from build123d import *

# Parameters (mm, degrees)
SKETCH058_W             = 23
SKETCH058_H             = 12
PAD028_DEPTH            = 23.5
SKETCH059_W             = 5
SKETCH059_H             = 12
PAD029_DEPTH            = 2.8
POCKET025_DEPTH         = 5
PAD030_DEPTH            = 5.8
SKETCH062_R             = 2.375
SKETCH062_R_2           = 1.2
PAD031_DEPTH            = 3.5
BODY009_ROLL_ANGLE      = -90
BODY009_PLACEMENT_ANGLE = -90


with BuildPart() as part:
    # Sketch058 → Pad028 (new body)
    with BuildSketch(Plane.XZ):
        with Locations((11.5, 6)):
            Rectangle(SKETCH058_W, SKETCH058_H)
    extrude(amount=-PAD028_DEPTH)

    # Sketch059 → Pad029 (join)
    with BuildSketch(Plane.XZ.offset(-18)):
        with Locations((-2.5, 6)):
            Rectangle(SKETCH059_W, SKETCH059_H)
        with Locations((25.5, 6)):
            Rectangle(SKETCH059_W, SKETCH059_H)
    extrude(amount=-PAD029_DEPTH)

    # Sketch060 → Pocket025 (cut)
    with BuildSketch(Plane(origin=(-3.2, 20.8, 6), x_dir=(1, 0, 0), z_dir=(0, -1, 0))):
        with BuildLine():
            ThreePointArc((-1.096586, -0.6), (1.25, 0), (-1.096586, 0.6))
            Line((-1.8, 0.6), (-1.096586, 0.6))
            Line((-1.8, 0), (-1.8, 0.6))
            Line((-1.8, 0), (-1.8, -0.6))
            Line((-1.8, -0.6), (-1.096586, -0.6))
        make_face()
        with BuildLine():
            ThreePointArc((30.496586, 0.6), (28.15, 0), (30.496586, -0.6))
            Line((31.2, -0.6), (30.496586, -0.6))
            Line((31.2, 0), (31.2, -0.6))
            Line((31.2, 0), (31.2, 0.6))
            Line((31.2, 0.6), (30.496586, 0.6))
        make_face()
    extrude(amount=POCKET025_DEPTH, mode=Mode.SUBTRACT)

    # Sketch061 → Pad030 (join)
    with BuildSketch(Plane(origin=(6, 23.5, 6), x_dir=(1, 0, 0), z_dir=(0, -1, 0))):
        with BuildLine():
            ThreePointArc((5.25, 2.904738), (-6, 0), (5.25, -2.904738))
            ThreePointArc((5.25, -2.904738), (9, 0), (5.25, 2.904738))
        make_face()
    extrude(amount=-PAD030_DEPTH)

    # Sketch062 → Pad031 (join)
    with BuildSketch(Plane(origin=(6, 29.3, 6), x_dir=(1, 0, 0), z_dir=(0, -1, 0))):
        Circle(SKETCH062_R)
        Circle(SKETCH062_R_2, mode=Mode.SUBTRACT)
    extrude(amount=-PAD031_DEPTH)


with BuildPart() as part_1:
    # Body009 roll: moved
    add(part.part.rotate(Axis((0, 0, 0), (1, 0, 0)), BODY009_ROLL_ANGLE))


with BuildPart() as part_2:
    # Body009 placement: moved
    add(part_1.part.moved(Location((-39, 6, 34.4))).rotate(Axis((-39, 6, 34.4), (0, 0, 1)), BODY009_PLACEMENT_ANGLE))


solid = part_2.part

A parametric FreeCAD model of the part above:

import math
import FreeCAD as App
import Part
import Sketcher
from FreeCAD import Vector


def add_polygon(sketch, points):
    """Adds a closed chain of lines whose ends are joined by coincident constraints."""
    first, n = sketch.GeometryCount, len(points)
    for a, b in zip(points, points[1:] + points[:1]):
        sketch.addGeometry(Part.LineSegment(App.Vector(*a, 0), App.Vector(*b, 0)), False)
    for i in range(n):
        sketch.addConstraint(Sketcher.Constraint("Coincident", first + i, 2, first + (i + 1) % n, 1))

doc = App.newDocument("Part")
body = doc.addObject("PartDesign::Body", "Body")

# Sketch on XZ plane
sketch1 = body.newObject("Sketcher::SketchObject", "Sketch")
sketch1.AttachmentSupport = (doc.getObject("XZ_Plane"), [""])
sketch1.MapMode = "FlatFace"
add_polygon(sketch1, [(0, 12), (0, 0), (23, 0), (23, 12)])  # lines 0-3
sketch1.addConstraint(Sketcher.Constraint("Vertical", 0))
sketch1.addConstraint(Sketcher.Constraint("Horizontal", 1))
sketch1.addConstraint(Sketcher.Constraint("Vertical", 2))
sketch1.addConstraint(Sketcher.Constraint("Horizontal", 3))
sketch1.addConstraint(Sketcher.Constraint("Coincident", 0, 2, -1, 1))
sketch1.addConstraint(Sketcher.Constraint("DistanceX", 1, 1, 1, 2, 23.0))
sketch1.addConstraint(Sketcher.Constraint("DistanceY", 0, 2, 0, 1, 12.0))
pad1 = body.newObject("PartDesign::Pad", "Pad")
pad1.Profile = sketch1
pad1.Length = 23.5
pad1.Reversed = True

# Sketch on XZ plane
sketch2 = body.newObject("Sketcher::SketchObject", "Sketch001")
sketch2.AttachmentSupport = (doc.getObject("XZ_Plane"), [""])
sketch2.MapMode = "FlatFace"
sketch2.AttachmentOffset = App.Placement(Vector(0, 0, -18), App.Rotation())
add_polygon(sketch2, [(-5, 12), (-5, 0), (0, 0), (0, 12)])  # lines 0-3
add_polygon(sketch2, [(23, 12), (23, 0), (28, 0), (28, 12)])  # lines 4-7
sketch2.addConstraint(Sketcher.Constraint("Vertical", 0))
sketch2.addConstraint(Sketcher.Constraint("Horizontal", 1))
sketch2.addConstraint(Sketcher.Constraint("Vertical", 2))
sketch2.addConstraint(Sketcher.Constraint("Horizontal", 3))
sketch2.addConstraint(Sketcher.Constraint("Vertical", 4))
sketch2.addConstraint(Sketcher.Constraint("Horizontal", 5))
sketch2.addConstraint(Sketcher.Constraint("Vertical", 6))
sketch2.addConstraint(Sketcher.Constraint("Horizontal", 7))
sketch2.addConstraint(Sketcher.Constraint("Coincident", 1, 2, -1, 1))
sketch2.addConstraint(Sketcher.Constraint("PointOnObject", 4, 2, -1))
sketch2.addConstraint(Sketcher.Constraint("Horizontal", 3, 2, 6, 2))
sketch2.addConstraint(Sketcher.Constraint("Equal", 3, 5))
sketch2.addConstraint(Sketcher.Constraint("DistanceX", 1, 1, 1, 2, 5.0))
sketch2.addConstraint(Sketcher.Constraint("DistanceY", 0, 2, 0, 1, 12.0))
sketch2.addConstraint(Sketcher.Constraint("DistanceX", -1, 1, 4, 2, 23.0))
pad2 = body.newObject("PartDesign::Pad", "Pad001")
pad2.Profile = sketch2
pad2.Length = 2.8
pad2.Reversed = True

# Sketch on XZ plane
sketch3 = body.newObject("Sketcher::SketchObject", "Sketch002")
sketch3.AttachmentSupport = (doc.getObject("XZ_Plane"), [""])
sketch3.MapMode = "FlatFace"
sketch3.AttachmentOffset = App.Placement(Vector(0, 0, -20.8), App.Rotation())
sketch3.addGeometry(Part.ArcOfCircle(Part.Circle(Vector(-3.2, 6, 0), Vector(0, 0, 1), 1.25), math.radians(-151.314603), math.radians(151.314603)), False)
sketch3.addGeometry(Part.LineSegment(Vector(-4.296586, 6.6, 0), Vector(-5, 6.6, 0)), False)
sketch3.addGeometry(Part.LineSegment(Vector(-5, 6.6, 0), Vector(-5, 5.4, 0)), False)
sketch3.addGeometry(Part.LineSegment(Vector(-5, 5.4, 0), Vector(-4.296586, 5.4, 0)), False)
sketch3.addGeometry(Part.ArcOfCircle(Part.Circle(Vector(26.2, 6, 0), Vector(0, 0, 1), 1.25), math.radians(28.685397), math.radians(331.314603)), False)
sketch3.addGeometry(Part.LineSegment(Vector(27.296586, 5.4, 0), Vector(28, 5.4, 0)), False)
sketch3.addGeometry(Part.LineSegment(Vector(28, 5.4, 0), Vector(28, 6.6, 0)), False)
sketch3.addGeometry(Part.LineSegment(Vector(28, 6.6, 0), Vector(27.296586, 6.6, 0)), False)
sketch3.addConstraint(Sketcher.Constraint("Coincident", 0, 2, 1, 1))
sketch3.addConstraint(Sketcher.Constraint("Coincident", 1, 2, 2, 1))
sketch3.addConstraint(Sketcher.Constraint("Coincident", 2, 2, 3, 1))
sketch3.addConstraint(Sketcher.Constraint("Coincident", 3, 2, 0, 1))
sketch3.addConstraint(Sketcher.Constraint("Coincident", 4, 2, 5, 1))
sketch3.addConstraint(Sketcher.Constraint("Coincident", 5, 2, 6, 1))
sketch3.addConstraint(Sketcher.Constraint("Coincident", 6, 2, 7, 1))
sketch3.addConstraint(Sketcher.Constraint("Coincident", 7, 2, 4, 1))
sketch3.addConstraint(Sketcher.Constraint("Horizontal", 1))
sketch3.addConstraint(Sketcher.Constraint("Vertical", 2))
sketch3.addConstraint(Sketcher.Constraint("Horizontal", 3))
sketch3.addConstraint(Sketcher.Constraint("Horizontal", 5))
sketch3.addConstraint(Sketcher.Constraint("Vertical", 6))
sketch3.addConstraint(Sketcher.Constraint("Horizontal", 7))
sketch3.addConstraint(Sketcher.Constraint("Equal", 0, 4))
sketch3.addConstraint(Sketcher.Constraint("Horizontal", 0, 3, 4, 3))
sketch3.addConstraint(Sketcher.Constraint("Horizontal", 3, 2, 4, 2))
sketch3.addConstraint(Sketcher.Constraint("Horizontal", 1, 2, 6, 2))
sketch3.addConstraint(Sketcher.Constraint("Vertical", 0, 2, 3, 2))
sketch3.addConstraint(Sketcher.Constraint("Equal", 3, 5))
sketch3.addConstraint(Sketcher.Constraint("Radius", 0, 1.25))
sketch3.addConstraint(Sketcher.Constraint("DistanceY", 2, 2, 2, 1, 1.2))
sketch3.addConstraint(Sketcher.Constraint("DistanceY", -1, 1, 0, 3, 6.0))
sketch3.addConstraint(Sketcher.Constraint("DistanceX", 1, 2, -1, 1, 5.0))
sketch3.addConstraint(Sketcher.Constraint("DistanceX", -1, 1, 5, 2, 28.0))
sketch3.addConstraint(Sketcher.Constraint("DistanceX", 0, 3, -1, 1, 3.2))
pocket1 = body.newObject("PartDesign::Pocket", "Pocket")
pocket1.Profile = sketch3
pocket1.Length = 5
pocket1.Reversed = True

# Sketch on XZ plane
sketch4 = body.newObject("Sketcher::SketchObject", "Sketch003")
sketch4.AttachmentSupport = (doc.getObject("XZ_Plane"), [""])
sketch4.MapMode = "FlatFace"
sketch4.AttachmentOffset = App.Placement(Vector(0, 0, -23.5), App.Rotation())
sketch4.addGeometry(Part.ArcOfCircle(Part.Circle(Vector(6, 6, 0), Vector(0, 0, 1), 6), math.radians(28.955029), math.radians(331.044971)), False)
sketch4.addGeometry(Part.ArcOfCircle(Part.Circle(Vector(12, 6, 0), Vector(0, 0, 1), 3), math.radians(-104.477503), math.radians(104.477503)), False)
sketch4.addConstraint(Sketcher.Constraint("Coincident", 0, 1, 1, 2))
sketch4.addConstraint(Sketcher.Constraint("Coincident", 1, 1, 0, 2))
sketch4.addConstraint(Sketcher.Constraint("Horizontal", 0, 3, 1, 3))
sketch4.addConstraint(Sketcher.Constraint("Radius", 0, 6.0))
sketch4.addConstraint(Sketcher.Constraint("Radius", 1, 3.0))
sketch4.addConstraint(Sketcher.Constraint("DistanceX", -1, 1, 0, 3, 6.0))
sketch4.addConstraint(Sketcher.Constraint("DistanceY", -1, 1, 0, 3, 6.0))
sketch4.addConstraint(Sketcher.Constraint("DistanceX", -1, 1, 1, 3, 12.0))
pad3 = body.newObject("PartDesign::Pad", "Pad002")
pad3.Profile = sketch4
pad3.Length = 5.8
pad3.Reversed = True

# Sketch on XZ plane
sketch5 = body.newObject("Sketcher::SketchObject", "Sketch004")
sketch5.AttachmentSupport = (doc.getObject("XZ_Plane"), [""])
sketch5.MapMode = "FlatFace"
sketch5.AttachmentOffset = App.Placement(Vector(0, 0, -29.3), App.Rotation())
sketch5.addGeometry(Part.Circle(Vector(6, 6, 0), Vector(0, 0, 1), 2.375), False)
sketch5.addGeometry(Part.Circle(Vector(6, 6, 0), Vector(0, 0, 1), 1.2), False)
sketch5.addConstraint(Sketcher.Constraint("Coincident", 1, 3, 0, 3))
sketch5.addConstraint(Sketcher.Constraint("Diameter", 1, 2.4))
sketch5.addConstraint(Sketcher.Constraint("Diameter", 0, 4.75))
sketch5.addConstraint(Sketcher.Constraint("DistanceX", -1, 1, 0, 3, 6.0))
sketch5.addConstraint(Sketcher.Constraint("DistanceY", -1, 1, 0, 3, 6.0))
pad4 = body.newObject("PartDesign::Pad", "Pad003")
pad4.Profile = sketch5
pad4.Length = 3.5
pad4.Reversed = True
body2 = doc.addObject("PartDesign::Body", "Body001")
doc.recompute()

body.Placement = App.Placement(Vector(0, 0, 0), App.Rotation(Vector(1, 0, 0), 270))
boolean = body2.newObject("PartDesign::Boolean", "Boolean")
boolean.Type = "Fuse"
boolean.addObjects([body])
body3 = doc.addObject("PartDesign::Body", "Body002")
doc.recompute()

body2.Placement = App.Placement(Vector(-39, 6, 34.4), App.Rotation(Vector(0, 0, 1), 270))
boolean2 = body3.newObject("PartDesign::Boolean", "Boolean001")
boolean2.Type = "Fuse"
boolean2.addObjects([body2])

doc.recompute()
